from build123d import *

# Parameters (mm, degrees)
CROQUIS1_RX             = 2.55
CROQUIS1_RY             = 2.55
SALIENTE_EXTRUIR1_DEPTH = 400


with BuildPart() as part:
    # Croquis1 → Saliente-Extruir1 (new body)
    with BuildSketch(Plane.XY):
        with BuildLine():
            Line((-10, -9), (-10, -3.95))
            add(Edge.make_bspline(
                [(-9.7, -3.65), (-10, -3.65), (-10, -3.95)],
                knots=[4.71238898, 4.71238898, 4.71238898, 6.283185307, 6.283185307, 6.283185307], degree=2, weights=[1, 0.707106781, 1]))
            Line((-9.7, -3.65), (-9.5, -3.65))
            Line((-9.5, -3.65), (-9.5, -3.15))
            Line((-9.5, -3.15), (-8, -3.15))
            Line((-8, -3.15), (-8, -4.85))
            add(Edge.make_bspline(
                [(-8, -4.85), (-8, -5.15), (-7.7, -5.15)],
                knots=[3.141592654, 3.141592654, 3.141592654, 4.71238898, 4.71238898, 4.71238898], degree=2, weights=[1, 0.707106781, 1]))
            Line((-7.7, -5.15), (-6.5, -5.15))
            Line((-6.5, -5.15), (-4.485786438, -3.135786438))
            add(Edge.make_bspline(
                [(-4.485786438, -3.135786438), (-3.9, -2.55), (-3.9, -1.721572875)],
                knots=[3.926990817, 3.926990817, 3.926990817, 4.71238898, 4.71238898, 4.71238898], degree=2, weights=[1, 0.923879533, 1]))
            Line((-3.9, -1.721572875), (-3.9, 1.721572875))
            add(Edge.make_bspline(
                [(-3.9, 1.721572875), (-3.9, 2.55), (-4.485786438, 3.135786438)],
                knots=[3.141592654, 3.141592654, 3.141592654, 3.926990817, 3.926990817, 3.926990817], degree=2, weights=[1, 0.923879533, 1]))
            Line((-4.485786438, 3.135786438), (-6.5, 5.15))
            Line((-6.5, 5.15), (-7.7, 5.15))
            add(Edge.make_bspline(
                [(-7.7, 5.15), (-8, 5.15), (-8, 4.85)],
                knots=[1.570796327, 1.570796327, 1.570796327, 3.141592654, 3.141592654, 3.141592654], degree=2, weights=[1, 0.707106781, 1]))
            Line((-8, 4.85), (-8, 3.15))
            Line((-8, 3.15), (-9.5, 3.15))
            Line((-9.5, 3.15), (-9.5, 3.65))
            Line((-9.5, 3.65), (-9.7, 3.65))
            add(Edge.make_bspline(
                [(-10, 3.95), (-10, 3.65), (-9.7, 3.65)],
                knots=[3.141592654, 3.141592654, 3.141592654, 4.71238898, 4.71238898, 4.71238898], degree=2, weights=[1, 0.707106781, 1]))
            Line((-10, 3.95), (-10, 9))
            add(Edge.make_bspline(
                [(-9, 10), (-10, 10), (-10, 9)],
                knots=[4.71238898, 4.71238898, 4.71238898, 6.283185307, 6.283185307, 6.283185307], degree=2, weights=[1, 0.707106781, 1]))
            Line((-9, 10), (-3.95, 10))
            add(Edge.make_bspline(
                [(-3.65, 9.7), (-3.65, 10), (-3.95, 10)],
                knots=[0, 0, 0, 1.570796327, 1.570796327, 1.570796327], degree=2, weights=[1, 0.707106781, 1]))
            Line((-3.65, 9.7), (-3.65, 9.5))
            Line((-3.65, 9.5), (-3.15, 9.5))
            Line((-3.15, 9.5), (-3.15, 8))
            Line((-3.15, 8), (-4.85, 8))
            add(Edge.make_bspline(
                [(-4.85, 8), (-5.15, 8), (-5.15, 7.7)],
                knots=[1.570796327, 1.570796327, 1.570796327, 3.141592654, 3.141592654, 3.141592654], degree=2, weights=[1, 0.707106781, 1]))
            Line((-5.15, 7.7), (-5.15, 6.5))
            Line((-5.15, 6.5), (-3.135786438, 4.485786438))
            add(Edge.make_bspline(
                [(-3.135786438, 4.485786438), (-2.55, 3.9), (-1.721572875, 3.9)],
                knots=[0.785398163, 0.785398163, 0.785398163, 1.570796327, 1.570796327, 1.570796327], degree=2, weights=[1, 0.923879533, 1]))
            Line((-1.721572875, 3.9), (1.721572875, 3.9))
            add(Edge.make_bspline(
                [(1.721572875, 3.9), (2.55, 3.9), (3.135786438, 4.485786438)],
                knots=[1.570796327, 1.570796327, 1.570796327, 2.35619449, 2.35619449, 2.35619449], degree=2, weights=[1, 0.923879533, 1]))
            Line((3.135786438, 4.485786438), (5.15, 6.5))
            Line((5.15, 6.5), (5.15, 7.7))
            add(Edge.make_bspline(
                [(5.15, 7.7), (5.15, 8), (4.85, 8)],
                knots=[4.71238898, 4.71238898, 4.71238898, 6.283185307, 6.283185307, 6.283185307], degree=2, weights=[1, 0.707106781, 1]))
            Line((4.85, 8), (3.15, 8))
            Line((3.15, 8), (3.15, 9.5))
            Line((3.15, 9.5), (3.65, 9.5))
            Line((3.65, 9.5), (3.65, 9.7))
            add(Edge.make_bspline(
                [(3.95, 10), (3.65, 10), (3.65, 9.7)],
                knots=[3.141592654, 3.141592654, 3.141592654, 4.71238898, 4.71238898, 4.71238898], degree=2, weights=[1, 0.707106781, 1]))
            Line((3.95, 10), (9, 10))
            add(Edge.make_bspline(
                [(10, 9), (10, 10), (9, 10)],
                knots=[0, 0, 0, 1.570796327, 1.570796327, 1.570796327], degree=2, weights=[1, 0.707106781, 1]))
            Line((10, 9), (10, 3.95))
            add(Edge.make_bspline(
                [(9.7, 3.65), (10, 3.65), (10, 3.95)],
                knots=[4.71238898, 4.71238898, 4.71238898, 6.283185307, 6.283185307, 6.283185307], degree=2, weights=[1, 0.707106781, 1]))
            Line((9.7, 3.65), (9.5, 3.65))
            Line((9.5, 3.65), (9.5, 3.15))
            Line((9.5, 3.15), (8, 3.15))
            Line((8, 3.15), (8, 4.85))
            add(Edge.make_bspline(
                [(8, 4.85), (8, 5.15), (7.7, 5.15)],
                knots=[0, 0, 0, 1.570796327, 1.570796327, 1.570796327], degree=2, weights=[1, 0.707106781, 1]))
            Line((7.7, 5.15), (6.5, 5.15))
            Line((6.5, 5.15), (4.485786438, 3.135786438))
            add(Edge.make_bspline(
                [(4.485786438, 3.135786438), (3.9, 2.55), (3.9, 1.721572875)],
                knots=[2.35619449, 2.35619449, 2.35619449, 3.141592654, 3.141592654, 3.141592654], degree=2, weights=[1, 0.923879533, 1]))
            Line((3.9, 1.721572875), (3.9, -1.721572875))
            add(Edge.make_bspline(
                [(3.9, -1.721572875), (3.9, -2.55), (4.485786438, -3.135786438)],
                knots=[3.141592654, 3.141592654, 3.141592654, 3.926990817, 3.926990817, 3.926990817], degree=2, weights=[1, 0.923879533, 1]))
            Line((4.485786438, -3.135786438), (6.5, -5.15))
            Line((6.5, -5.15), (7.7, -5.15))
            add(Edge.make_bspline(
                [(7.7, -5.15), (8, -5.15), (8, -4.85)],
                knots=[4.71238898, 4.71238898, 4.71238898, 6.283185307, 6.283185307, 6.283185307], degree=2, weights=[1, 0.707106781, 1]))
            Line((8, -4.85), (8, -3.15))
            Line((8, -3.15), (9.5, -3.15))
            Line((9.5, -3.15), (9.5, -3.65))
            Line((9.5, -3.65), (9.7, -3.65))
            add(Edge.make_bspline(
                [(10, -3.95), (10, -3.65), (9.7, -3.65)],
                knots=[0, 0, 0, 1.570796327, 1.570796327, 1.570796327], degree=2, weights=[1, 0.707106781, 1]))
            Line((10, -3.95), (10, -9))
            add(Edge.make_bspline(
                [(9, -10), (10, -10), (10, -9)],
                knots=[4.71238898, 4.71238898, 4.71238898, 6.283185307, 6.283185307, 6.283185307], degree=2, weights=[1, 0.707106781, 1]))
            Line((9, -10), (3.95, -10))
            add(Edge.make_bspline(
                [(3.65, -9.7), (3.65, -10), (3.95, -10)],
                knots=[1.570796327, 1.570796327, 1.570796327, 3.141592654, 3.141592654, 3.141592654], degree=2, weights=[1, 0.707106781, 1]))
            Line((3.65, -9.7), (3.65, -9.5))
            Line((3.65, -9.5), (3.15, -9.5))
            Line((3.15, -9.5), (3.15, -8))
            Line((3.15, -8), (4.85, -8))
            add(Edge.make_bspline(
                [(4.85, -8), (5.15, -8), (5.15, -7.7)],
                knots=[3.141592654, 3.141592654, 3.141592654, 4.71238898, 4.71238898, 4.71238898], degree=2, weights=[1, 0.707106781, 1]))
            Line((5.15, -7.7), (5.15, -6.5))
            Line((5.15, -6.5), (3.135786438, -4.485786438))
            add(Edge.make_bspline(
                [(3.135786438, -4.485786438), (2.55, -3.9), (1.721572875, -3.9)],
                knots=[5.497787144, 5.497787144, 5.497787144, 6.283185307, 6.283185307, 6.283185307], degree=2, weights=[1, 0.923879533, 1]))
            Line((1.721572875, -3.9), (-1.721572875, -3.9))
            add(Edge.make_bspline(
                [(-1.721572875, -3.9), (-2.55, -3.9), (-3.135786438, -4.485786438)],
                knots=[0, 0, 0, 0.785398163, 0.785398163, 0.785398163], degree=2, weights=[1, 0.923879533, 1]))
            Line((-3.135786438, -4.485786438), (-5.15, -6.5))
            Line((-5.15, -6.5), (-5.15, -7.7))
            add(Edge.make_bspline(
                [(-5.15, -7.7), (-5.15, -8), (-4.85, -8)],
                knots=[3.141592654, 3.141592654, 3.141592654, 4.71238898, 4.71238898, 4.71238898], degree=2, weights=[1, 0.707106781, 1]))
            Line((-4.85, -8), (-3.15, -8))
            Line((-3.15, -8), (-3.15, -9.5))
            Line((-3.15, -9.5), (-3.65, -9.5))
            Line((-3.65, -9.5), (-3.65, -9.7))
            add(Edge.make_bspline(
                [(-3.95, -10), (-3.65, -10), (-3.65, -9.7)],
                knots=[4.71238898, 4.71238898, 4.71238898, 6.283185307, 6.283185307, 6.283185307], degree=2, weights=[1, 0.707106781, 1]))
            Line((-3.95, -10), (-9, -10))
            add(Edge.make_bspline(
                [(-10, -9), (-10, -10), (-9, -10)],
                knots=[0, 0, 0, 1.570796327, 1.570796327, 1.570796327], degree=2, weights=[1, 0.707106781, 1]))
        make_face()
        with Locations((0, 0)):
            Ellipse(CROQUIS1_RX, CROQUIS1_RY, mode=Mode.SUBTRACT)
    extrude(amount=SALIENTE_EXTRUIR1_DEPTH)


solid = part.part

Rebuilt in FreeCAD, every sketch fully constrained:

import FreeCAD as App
import Part
import Sketcher
Q = App.Units.Quantity

doc = App.newDocument("Part")
body = doc.addObject("PartDesign::Body", "Body")

sketch1 = doc.addObject("Sketcher::SketchObject", "Sketch")
body.addObject(sketch1)
sketch1.AttachmentSupport = (doc.XY_Plane, [""])
sketch1.MapMode = "FlatFace"
sketch1.addGeometry([
    Part.LineSegment(App.Vector(-10, -3.95, 0), App.Vector(-10, -9, 0)),
    Part.BSplineCurve([App.Vector(-10, -9, 0), App.Vector(-10, -10, 0), App.Vector(-9, -10, 0)], [3, 3], [0, 1.570796327], False, 2, [1, 0.707106781, 1], False),
    Part.LineSegment(App.Vector(-9, -10, 0), App.Vector(-3.95, -10, 0)),
    Part.BSplineCurve([App.Vector(-3.95, -10, 0), App.Vector(-3.65, -10, 0), App.Vector(-3.65, -9.7, 0)], [3, 3], [4.71238898, 6.283185307], False, 2, [1, 0.707106781, 1], False),
    Part.LineSegment(App.Vector(-3.65, -9.7, 0), App.Vector(-3.65, -9.5, 0)),
    Part.LineSegment(App.Vector(-3.65, -9.5, 0), App.Vector(-3.15, -9.5, 0)),
    Part.LineSegment(App.Vector(-3.15, -9.5, 0), App.Vector(-3.15, -8, 0)),
    Part.LineSegment(App.Vector(-3.15, -8, 0), App.Vector(-4.85, -8, 0)),
    Part.BSplineCurve([App.Vector(-5.15, -7.7, 0), App.Vector(-5.15, -8, 0), App.Vector(-4.85, -8, 0)], [3, 3], [3.141592654, 4.71238898], False, 2, [1, 0.707106781, 1], False),
    Part.LineSegment(App.Vector(-5.15, -7.7, 0), App.Vector(-5.15, -6.5, 0)),
    Part.LineSegment(App.Vector(-5.15, -6.5, 0), App.Vector(-3.135786, -4.485786, 0)),
    Part.BSplineCurve([App.Vector(-1.721573, -3.9, 0), App.Vector(-2.55, -3.9, 0), App.Vector(-3.135786, -4.485786, 0)], [3, 3], [0, 0.785398163], False, 2, [1, 0.923879533, 1], False),
    Part.LineSegment(App.Vector(-1.721573, -3.9, 0), App.Vector(1.721573, -3.9, 0)),
    Part.BSplineCurve([App.Vector(3.135786, -4.485786, 0), App.Vector(2.55, -3.9, 0), App.Vector(1.721573, -3.9, 0)], [3, 3], [5.497787144, 6.283185307], False, 2, [1, 0.923879533, 1], False),
    Part.LineSegment(App.Vector(3.135786, -4.485786, 0), App.Vector(5.15, -6.5, 0)),
    Part.LineSegment(App.Vector(5.15, -6.5, 0), App.Vector(5.15, -7.7, 0)),
    Part.BSplineCurve([App.Vector(4.85, -8, 0), App.Vector(5.15, -8, 0), App.Vector(5.15, -7.7, 0)], [3, 3], [3.141592654, 4.71238898], False, 2, [1, 0.707106781, 1], False),
    Part.LineSegment(App.Vector(4.85, -8, 0), App.Vector(3.15, -8, 0)),
    Part.LineSegment(App.Vector(3.15, -8, 0), App.Vector(3.15, -9.5, 0)),
    Part.LineSegment(App.Vector(3.15, -9.5, 0), App.Vector(3.65, -9.5, 0)),
    Part.LineSegment(App.Vector(3.65, -9.5, 0), App.Vector(3.65, -9.7, 0)),
    Part.BSplineCurve([App.Vector(3.65, -9.7, 0), App.Vector(3.65, -10, 0), App.Vector(3.95, -10, 0)], [3, 3], [1.570796327, 3.141592654], False, 2, [1, 0.707106781, 1], False),
    Part.LineSegment(App.Vector(3.95, -10, 0), App.Vector(9, -10, 0)),
    Part.BSplineCurve([App.Vector(9, -10, 0), App.Vector(10, -10, 0), App.Vector(10, -9, 0)], [3, 3], [4.71238898, 6.283185307], False, 2, [1, 0.707106781, 1], False),
    Part.LineSegment(App.Vector(10, -9, 0), App.Vector(10, -3.95, 0)),
    Part.BSplineCurve([App.Vector(10, -3.95, 0), App.Vector(10, -3.65, 0), App.Vector(9.7, -3.65, 0)], [3, 3], [0, 1.570796327], False, 2, [1, 0.707106781, 1], False),
    Part.LineSegment(App.Vector(9.7, -3.65, 0), App.Vector(9.5, -3.65, 0)),
    Part.LineSegment(App.Vector(9.5, -3.65, 0), App.Vector(9.5, -3.15, 0)),
    Part.LineSegment(App.Vector(9.5, -3.15, 0), App.Vector(8, -3.15, 0)),
    Part.LineSegment(App.Vector(8, -3.15, 0), App.Vector(8, -4.85, 0)),
    Part.BSplineCurve([App.Vector(7.7, -5.15, 0), App.Vector(8, -5.15, 0), App.Vector(8, -4.85, 0)], [3, 3], [4.71238898, 6.283185307], False, 2, [1, 0.707106781, 1], False),
    Part.LineSegment(App.Vector(7.7, -5.15, 0), App.Vector(6.5, -5.15, 0)),
    Part.LineSegment(App.Vector(6.5, -5.15, 0), App.Vector(4.485786, -3.135786, 0)),
    Part.BSplineCurve([App.Vector(3.9, -1.721573, 0), App.Vector(3.9, -2.55, 0), App.Vector(4.485786, -3.135786, 0)], [3, 3], [3.141592654, 3.926990817], False, 2, [1, 0.923879533, 1], False),
    Part.LineSegment(App.Vector(3.9, -1.721573, 0), App.Vector(3.9, 1.721573, 0)),
    Part.BSplineCurve([App.Vector(4.485786, 3.135786, 0), App.Vector(3.9, 2.55, 0), App.Vector(3.9, 1.721573, 0)], [3, 3], [2.35619449, 3.141592654], False, 2, [1, 0.923879533, 1], False),
    Part.LineSegment(App.Vector(4.485786, 3.135786, 0), App.Vector(6.5, 5.15, 0)),
    Part.LineSegment(App.Vector(6.5, 5.15, 0), App.Vector(7.7, 5.15, 0)),
    Part.BSplineCurve([App.Vector(8, 4.85, 0), App.Vector(8, 5.15, 0), App.Vector(7.7, 5.15, 0)], [3, 3], [0, 1.570796327], False, 2, [1, 0.707106781, 1], False),
    Part.LineSegment(App.Vector(8, 4.85, 0), App.Vector(8, 3.15, 0)),
    Part.LineSegment(App.Vector(8, 3.15, 0), App.Vector(9.5, 3.15, 0)),
    Part.LineSegment(App.Vector(9.5, 3.15, 0), App.Vector(9.5, 3.65, 0)),
    Part.LineSegment(App.Vector(9.5, 3.65, 0), App.Vector(9.7, 3.65, 0)),
    Part.BSplineCurve([App.Vector(9.7, 3.65, 0), App.Vector(10, 3.65, 0), App.Vector(10, 3.95, 0)], [3, 3], [4.71238898, 6.283185307], False, 2, [1, 0.707106781, 1], False),
    Part.LineSegment(App.Vector(10, 3.95, 0), App.Vector(10, 9, 0)),
    Part.BSplineCurve([App.Vector(10, 9, 0), App.Vector(10, 10, 0), App.Vector(9, 10, 0)], [3, 3], [0, 1.570796327], False, 2, [1, 0.707106781, 1], False),
    Part.LineSegment(App.Vector(9, 10, 0), App.Vector(3.95, 10, 0)),
    Part.BSplineCurve([App.Vector(3.95, 10, 0), App.Vector(3.65, 10, 0), App.Vector(3.65, 9.7, 0)], [3, 3], [3.141592654, 4.71238898], False, 2, [1, 0.707106781, 1], False),
    Part.LineSegment(App.Vector(3.65, 9.7, 0), App.Vector(3.65, 9.5, 0)),
    Part.LineSegment(App.Vector(3.65, 9.5, 0), App.Vector(3.15, 9.5, 0)),
    Part.LineSegment(App.Vector(3.15, 9.5, 0), App.Vector(3.15, 8, 0)),
    Part.LineSegment(App.Vector(3.15, 8, 0), App.Vector(4.85, 8, 0)),
    Part.BSplineCurve([App.Vector(5.15, 7.7, 0), App.Vector(5.15, 8, 0), App.Vector(4.85, 8, 0)], [3, 3], [4.71238898, 6.283185307], False, 2, [1, 0.707106781, 1], False),
    Part.LineSegment(App.Vector(5.15, 7.7, 0), App.Vector(5.15, 6.5, 0)),
    Part.LineSegment(App.Vector(5.15, 6.5, 0), App.Vector(3.135786, 4.485786, 0)),
    Part.BSplineCurve([App.Vector(1.721573, 3.9, 0), App.Vector(2.55, 3.9, 0), App.Vector(3.135786, 4.485786, 0)], [3, 3], [1.570796327, 2.35619449], False, 2, [1, 0.923879533, 1], False),
    Part.LineSegment(App.Vector(1.721573, 3.9, 0), App.Vector(-1.721573, 3.9, 0)),
    Part.BSplineCurve([App.Vector(-3.135786, 4.485786, 0), App.Vector(-2.55, 3.9, 0), App.Vector(-1.721573, 3.9, 0)], [3, 3], [0.785398163, 1.570796327], False, 2, [1, 0.923879533, 1], False),
    Part.LineSegment(App.Vector(-3.135786, 4.485786, 0), App.Vector(-5.15, 6.5, 0)),
    Part.LineSegment(App.Vector(-5.15, 6.5, 0), App.Vector(-5.15, 7.7, 0)),
    Part.BSplineCurve([App.Vector(-4.85, 8, 0), App.Vector(-5.15, 8, 0), App.Vector(-5.15, 7.7, 0)], [3, 3], [1.570796327, 3.141592654], False, 2, [1, 0.707106781, 1], False),
    Part.LineSegment(App.Vector(-4.85, 8, 0), App.Vector(-3.15, 8, 0)),
    Part.LineSegment(App.Vector(-3.15, 8, 0), App.Vector(-3.15, 9.5, 0)),
    Part.LineSegment(App.Vector(-3.15, 9.5, 0), App.Vector(-3.65, 9.5, 0)),
    Part.LineSegment(App.Vector(-3.65, 9.5, 0), App.Vector(-3.65, 9.7, 0)),
    Part.BSplineCurve([App.Vector(-3.65, 9.7, 0), App.Vector(-3.65, 10, 0), App.Vector(-3.95, 10, 0)], [3, 3], [0, 1.570796327], False, 2, [1, 0.707106781, 1], False),
    Part.LineSegment(App.Vector(-3.95, 10, 0), App.Vector(-9, 10, 0)),
    Part.BSplineCurve([App.Vector(-9, 10, 0), App.Vector(-10, 10, 0), App.Vector(-10, 9, 0)], [3, 3], [4.71238898, 6.283185307], False, 2, [1, 0.707106781, 1], False),
    Part.LineSegment(App.Vector(-10, 9, 0), App.Vector(-10, 3.95, 0)),
    Part.BSplineCurve([App.Vector(-10, 3.95, 0), App.Vector(-10, 3.65, 0), App.Vector(-9.7, 3.65, 0)], [3, 3], [3.141592654, 4.71238898], False, 2, [1, 0.707106781, 1], False),
    Part.LineSegment(App.Vector(-9.7, 3.65, 0), App.Vector(-9.5, 3.65, 0)),
    Part.LineSegment(App.Vector(-9.5, 3.65, 0), App.Vector(-9.5, 3.15, 0)),
    Part.LineSegment(App.Vector(-9.5, 3.15, 0), App.Vector(-8, 3.15, 0)),
    Part.LineSegment(App.Vector(-8, 3.15, 0), App.Vector(-8, 4.85, 0)),
    Part.BSplineCurve([App.Vector(-7.7, 5.15, 0), App.Vector(-8, 5.15, 0), App.Vector(-8, 4.85, 0)], [3, 3], [1.570796327, 3.141592654], False, 2, [1, 0.707106781, 1], False),
    Part.LineSegment(App.Vector(-7.7, 5.15, 0), App.Vector(-6.5, 5.15, 0)),
    Part.LineSegment(App.Vector(-6.5, 5.15, 0), App.Vector(-4.485786, 3.135786, 0)),
    Part.BSplineCurve([App.Vector(-3.9, 1.721573, 0), App.Vector(-3.9, 2.55, 0), App.Vector(-4.485786, 3.135786, 0)], [3, 3], [3.141592654, 3.926990817], False, 2, [1, 0.923879533, 1], False),
    Part.LineSegment(App.Vector(-3.9, 1.721573, 0), App.Vector(-3.9, -1.721573, 0)),
    Part.BSplineCurve([App.Vector(-4.485786, -3.135786, 0), App.Vector(-3.9, -2.55, 0), App.Vector(-3.9, -1.721573, 0)], [3, 3], [3.926990817, 4.71238898], False, 2, [1, 0.923879533, 1], False),
    Part.LineSegment(App.Vector(-4.485786, -3.135786, 0), App.Vector(-6.5, -5.15, 0)),
    Part.LineSegment(App.Vector(-6.5, -5.15, 0), App.Vector(-7.7, -5.15, 0)),
    Part.BSplineCurve([App.Vector(-8, -4.85, 0), App.Vector(-8, -5.15, 0), App.Vector(-7.7, -5.15, 0)], [3, 3], [3.141592654, 4.71238898], False, 2, [1, 0.707106781, 1], False),
    Part.LineSegment(App.Vector(-8, -4.85, 0), App.Vector(-8, -3.15, 0)),
    Part.LineSegment(App.Vector(-8, -3.15, 0), App.Vector(-9.5, -3.15, 0)),
    Part.LineSegment(App.Vector(-9.5, -3.15, 0), App.Vector(-9.5, -3.65, 0)),
    Part.LineSegment(App.Vector(-9.5, -3.65, 0), App.Vector(-9.7, -3.65, 0)),
    Part.BSplineCurve([App.Vector(-9.7, -3.65, 0), App.Vector(-10, -3.65, 0), App.Vector(-10, -3.95, 0)], [3, 3], [4.71238898, 6.283185307], False, 2, [1, 0.707106781, 1], False),
    Part.Ellipse(App.Vector(2.55, 0, 0), App.Vector(0, 2.55, 0), App.Vector(0, 0, 0)),
], False)
sketch1.addConstraint([
    Sketcher.Constraint("Block", 1),
    Sketcher.Constraint("Block", 3),
    Sketcher.Constraint("Block", 8),
    Sketcher.Constraint("Block", 11),
    Sketcher.Constraint("Block", 13),
    Sketcher.Constraint("Block", 16),
    Sketcher.Constraint("Block", 21),
    Sketcher.Constraint("Block", 23),
    Sketcher.Constraint("Block", 25),
    Sketcher.Constraint("Block", 30),
    Sketcher.Constraint("Block", 33),
    Sketcher.Constraint("Block", 35),
    Sketcher.Constraint("Block", 38),
    Sketcher.Constraint("Block", 43),
    Sketcher.Constraint("Block", 45),
    Sketcher.Constraint("Block", 47),
    Sketcher.Constraint("Block", 52),
    Sketcher.Constraint("Block", 55),
    Sketcher.Constraint("Block", 57),
    Sketcher.Constraint("Block", 60),
    Sketcher.Constraint("Block", 65),
    Sketcher.Constraint("Block", 67),
    Sketcher.Constraint("Block", 69),
    Sketcher.Constraint("Block", 74),
    Sketcher.Constraint("Block", 77),
    Sketcher.Constraint("Block", 79),
    Sketcher.Constraint("Block", 82),
    Sketcher.Constraint("Block", 87),
    Sketcher.Constraint("Block", 88),
    Sketcher.Constraint("Coincident", 0, 2, 1, 1),
    Sketcher.Constraint("Coincident", 1, 2, 2, 1),
    Sketcher.Constraint("Coincident", 2, 2, 3, 1),
    Sketcher.Constraint("Coincident", 3, 2, 4, 1),
    Sketcher.Constraint("Coincident", 4, 2, 5, 1),
    Sketcher.Constraint("Coincident", 5, 2, 6, 1),
    Sketcher.Constraint("Coincident", 6, 2, 7, 1),
    Sketcher.Constraint("Coincident", 7, 2, 8, 2),
    Sketcher.Constraint("Coincident", 8, 1, 9, 1),
    Sketcher.Constraint("Coincident", 9, 2, 10, 1),
    Sketcher.Constraint("Coincident", 10, 2, 11, 2),
    Sketcher.Constraint("Coincident", 11, 1, 12, 1),
    Sketcher.Constraint("Coincident", 12, 2, 13, 2),
    Sketcher.Constraint("Coincident", 13, 1, 14, 1),
    Sketcher.Constraint("Coincident", 14, 2, 15, 1),
    Sketcher.Constraint("Coincident", 15, 2, 16, 2),
    Sketcher.Constraint("Coincident", 16, 1, 17, 1),
    Sketcher.Constraint("Coincident", 17, 2, 18, 1),
    Sketcher.Constraint("Coincident", 18, 2, 19, 1),
    Sketcher.Constraint("Coincident", 19, 2, 20, 1),
    Sketcher.Constraint("Coincident", 20, 2, 21, 1),
    Sketcher.Constraint("Coincident", 21, 2, 22, 1),
    Sketcher.Constraint("Coincident", 22, 2, 23, 1),
    Sketcher.Constraint("Coincident", 23, 2, 24, 1),
    Sketcher.Constraint("Coincident", 24, 2, 25, 1),
    Sketcher.Constraint("Coincident", 25, 2, 26, 1),
    Sketcher.Constraint("Coincident", 26, 2, 27, 1),
    Sketcher.Constraint("Coincident", 27, 2, 28, 1),
    Sketcher.Constraint("Coincident", 28, 2, 29, 1),
    Sketcher.Constraint("Coincident", 29, 2, 30, 2),
    Sketcher.Constraint("Coincident", 30, 1, 31, 1),
    Sketcher.Constraint("Coincident", 31, 2, 32, 1),
    Sketcher.Constraint("Coincident", 32, 2, 33, 2),
    Sketcher.Constraint("Coincident", 33, 1, 34, 1),
    Sketcher.Constraint("Coincident", 34, 2, 35, 2),
    Sketcher.Constraint("Coincident", 35, 1, 36, 1),
    Sketcher.Constraint("Coincident", 36, 2, 37, 1),
    Sketcher.Constraint("Coincident", 37, 2, 38, 2),
    Sketcher.Constraint("Coincident", 38, 1, 39, 1),
    Sketcher.Constraint("Coincident", 39, 2, 40, 1),
    Sketcher.Constraint("Coincident", 40, 2, 41, 1),
    Sketcher.Constraint("Coincident", 41, 2, 42, 1),
    Sketcher.Constraint("Coincident", 42, 2, 43, 1),
    Sketcher.Constraint("Coincident", 43, 2, 44, 1),
    Sketcher.Constraint("Coincident", 44, 2, 45, 1),
    Sketcher.Constraint("Coincident", 45, 2, 46, 1),
    Sketcher.Constraint("Coincident", 46, 2, 47, 1),
    Sketcher.Constraint("Coincident", 47, 2, 48, 1),
    Sketcher.Constraint("Coincident", 48, 2, 49, 1),
    Sketcher.Constraint("Coincident", 49, 2, 50, 1),
    Sketcher.Constraint("Coincident", 50, 2, 51, 1),
    Sketcher.Constraint("Coincident", 51, 2, 52, 2),
    Sketcher.Constraint("Coincident", 52, 1, 53, 1),
    Sketcher.Constraint("Coincident", 53, 2, 54, 1),
    Sketcher.Constraint("Coincident", 54, 2, 55, 2),
    Sketcher.Constraint("Coincident", 55, 1, 56, 1),
    Sketcher.Constraint("Coincident", 56, 2, 57, 2),
    Sketcher.Constraint("Coincident", 57, 1, 58, 1),
    Sketcher.Constraint("Coincident", 58, 2, 59, 1),
    Sketcher.Constraint("Coincident", 59, 2, 60, 2),
    Sketcher.Constraint("Coincident", 60, 1, 61, 1),
    Sketcher.Constraint("Coincident", 61, 2, 62, 1),
    Sketcher.Constraint("Coincident", 62, 2, 63, 1),
    Sketcher.Constraint("Coincident", 63, 2, 64, 1),
    Sketcher.Constraint("Coincident", 64, 2, 65, 1),
    Sketcher.Constraint("Coincident", 65, 2, 66, 1),
    Sketcher.Constraint("Coincident", 66, 2, 67, 1),
    Sketcher.Constraint("Coincident", 67, 2, 68, 1),
    Sketcher.Constraint("Coincident", 68, 2, 69, 1),
    Sketcher.Constraint("Coincident", 69, 2, 70, 1),
    Sketcher.Constraint("Coincident", 70, 2, 71, 1),
    Sketcher.Constraint("Coincident", 71, 2, 72, 1),
    Sketcher.Constraint("Coincident", 72, 2, 73, 1),
    Sketcher.Constraint("Coincident", 73, 2, 74, 2),
    Sketcher.Constraint("Coincident", 74, 1, 75, 1),
    Sketcher.Constraint("Coincident", 75, 2, 76, 1),
    Sketcher.Constraint("Coincident", 76, 2, 77, 2),
    Sketcher.Constraint("Coincident", 77, 1, 78, 1),
    Sketcher.Constraint("Coincident", 78, 2, 79, 2),
    Sketcher.Constraint("Coincident", 79, 1, 80, 1),
    Sketcher.Constraint("Coincident", 80, 2, 81, 1),
    Sketcher.Constraint("Coincident", 81, 2, 82, 2),
    Sketcher.Constraint("Coincident", 82, 1, 83, 1),
    Sketcher.Constraint("Coincident", 83, 2, 84, 1),
    Sketcher.Constraint("Coincident", 84, 2, 85, 1),
    Sketcher.Constraint("Coincident", 85, 2, 86, 1),
    Sketcher.Constraint("Coincident", 86, 2, 87, 1),
    Sketcher.Constraint("Coincident", 87, 2, 0, 1),
    Sketcher.Constraint("Vertical", 4),
    Sketcher.Constraint("Horizontal", 5),
    Sketcher.Constraint("Vertical", 6),
    Sketcher.Constraint("Horizontal", 7),
    Sketcher.Constraint("Vertical", 9),
    Sketcher.Constraint("Vertical", 15),
    Sketcher.Constraint("Horizontal", 17),
    Sketcher.Constraint("Vertical", 18),
    Sketcher.Constraint("Horizontal", 19),
    Sketcher.Constraint("Vertical", 20),
    Sketcher.Constraint("Horizontal", 26),
    Sketcher.Constraint("Vertical", 27),
    Sketcher.Constraint("Horizontal", 28),
    Sketcher.Constraint("Vertical", 29),
    Sketcher.Constraint("Horizontal", 31),
    Sketcher.Constraint("Horizontal", 37),
    Sketcher.Constraint("Vertical", 39),
    Sketcher.Constraint("Horizontal", 40),
    Sketcher.Constraint("Vertical", 41),
    Sketcher.Constraint("Horizontal", 42),
    Sketcher.Constraint("Vertical", 48),
    Sketcher.Constraint("Horizontal", 49),
    Sketcher.Constraint("Vertical", 50),
    Sketcher.Constraint("Horizontal", 51),
    Sketcher.Constraint("Vertical", 53),
    Sketcher.Constraint("Vertical", 59),
    Sketcher.Constraint("Horizontal", 61),
    Sketcher.Constraint("Vertical", 62),
    Sketcher.Constraint("Horizontal", 63),
    Sketcher.Constraint("Vertical", 64),
    Sketcher.Constraint("Horizontal", 70),
    Sketcher.Constraint("Vertical", 71),
    Sketcher.Constraint("Horizontal", 72),
    Sketcher.Constraint("Vertical", 73),
    Sketcher.Constraint("Horizontal", 75),
    Sketcher.Constraint("Horizontal", 81),
    Sketcher.Constraint("Vertical", 83),
    Sketcher.Constraint("Horizontal", 84),
    Sketcher.Constraint("Vertical", 85),
    Sketcher.Constraint("Horizontal", 86),
    Sketcher.Constraint("DistanceX", 5, 1, 5, 2, Q("0.5 mm")),
    Sketcher.Constraint("DistanceX", 17, 2, 17, 1, Q("1.7 mm")),
    Sketcher.Constraint("DistanceX", 26, 2, 26, 1, Q("0.2 mm")),
    Sketcher.Constraint("DistanceX", 31, 2, 31, 1, Q("1.2 mm")),
    Sketcher.Constraint("DistanceX", 37, 1, 37, 2, Q("1.2 mm")),
    Sketcher.Constraint("DistanceX", 40, 1, 40, 2, Q("1.5 mm")),
    Sketcher.Constraint("DistanceX", 49, 2, 49, 1, Q("0.5 mm")),
    Sketcher.Constraint("DistanceX", 61, 1, 61, 2, Q("1.7 mm")),
    Sketcher.Constraint("DistanceX", 70, 1, 70, 2, Q("0.2 mm")),
    Sketcher.Constraint("DistanceX", 75, 1, 75, 2, Q("1.2 mm")),
    Sketcher.Constraint("DistanceX", 81, 2, 81, 1, Q("1.2 mm")),
    Sketcher.Constraint("DistanceX", 84, 2, 84, 1, Q("1.5 mm")),
    Sketcher.Constraint("DistanceY", 4, 1, 4, 2, Q("0.2 mm")),
    Sketcher.Constraint("DistanceY", 9, 1, 9, 2, Q("1.2 mm")),
    Sketcher.Constraint("DistanceY", 15, 2, 15, 1, Q("1.2 mm")),
    Sketcher.Constraint("DistanceY", 18, 2, 18, 1, Q("1.5 mm")),
    Sketcher.Constraint("DistanceY", 27, 1, 27, 2, Q("0.5 mm")),
    Sketcher.Constraint("DistanceY", 39, 2, 39, 1, Q("1.7 mm")),
    Sketcher.Constraint("DistanceY", 48, 2, 48, 1, Q("0.2 mm")),
    Sketcher.Constraint("DistanceY", 53, 2, 53, 1, Q("1.2 mm")),
    Sketcher.Constraint("DistanceY", 59, 1, 59, 2, Q("1.2 mm")),
    Sketcher.Constraint("DistanceY", 62, 1, 62, 2, Q("1.5 mm")),
    Sketcher.Constraint("DistanceY", 71, 2, 71, 1, Q("0.5 mm")),
    Sketcher.Constraint("DistanceY", 83, 1, 83, 2, Q("1.7 mm")),
])
pad1 = doc.addObject("PartDesign::Pad", "Pad")
body.addObject(pad1)
pad1.Profile = sketch1
pad1.Length = 400

doc.recompute()
